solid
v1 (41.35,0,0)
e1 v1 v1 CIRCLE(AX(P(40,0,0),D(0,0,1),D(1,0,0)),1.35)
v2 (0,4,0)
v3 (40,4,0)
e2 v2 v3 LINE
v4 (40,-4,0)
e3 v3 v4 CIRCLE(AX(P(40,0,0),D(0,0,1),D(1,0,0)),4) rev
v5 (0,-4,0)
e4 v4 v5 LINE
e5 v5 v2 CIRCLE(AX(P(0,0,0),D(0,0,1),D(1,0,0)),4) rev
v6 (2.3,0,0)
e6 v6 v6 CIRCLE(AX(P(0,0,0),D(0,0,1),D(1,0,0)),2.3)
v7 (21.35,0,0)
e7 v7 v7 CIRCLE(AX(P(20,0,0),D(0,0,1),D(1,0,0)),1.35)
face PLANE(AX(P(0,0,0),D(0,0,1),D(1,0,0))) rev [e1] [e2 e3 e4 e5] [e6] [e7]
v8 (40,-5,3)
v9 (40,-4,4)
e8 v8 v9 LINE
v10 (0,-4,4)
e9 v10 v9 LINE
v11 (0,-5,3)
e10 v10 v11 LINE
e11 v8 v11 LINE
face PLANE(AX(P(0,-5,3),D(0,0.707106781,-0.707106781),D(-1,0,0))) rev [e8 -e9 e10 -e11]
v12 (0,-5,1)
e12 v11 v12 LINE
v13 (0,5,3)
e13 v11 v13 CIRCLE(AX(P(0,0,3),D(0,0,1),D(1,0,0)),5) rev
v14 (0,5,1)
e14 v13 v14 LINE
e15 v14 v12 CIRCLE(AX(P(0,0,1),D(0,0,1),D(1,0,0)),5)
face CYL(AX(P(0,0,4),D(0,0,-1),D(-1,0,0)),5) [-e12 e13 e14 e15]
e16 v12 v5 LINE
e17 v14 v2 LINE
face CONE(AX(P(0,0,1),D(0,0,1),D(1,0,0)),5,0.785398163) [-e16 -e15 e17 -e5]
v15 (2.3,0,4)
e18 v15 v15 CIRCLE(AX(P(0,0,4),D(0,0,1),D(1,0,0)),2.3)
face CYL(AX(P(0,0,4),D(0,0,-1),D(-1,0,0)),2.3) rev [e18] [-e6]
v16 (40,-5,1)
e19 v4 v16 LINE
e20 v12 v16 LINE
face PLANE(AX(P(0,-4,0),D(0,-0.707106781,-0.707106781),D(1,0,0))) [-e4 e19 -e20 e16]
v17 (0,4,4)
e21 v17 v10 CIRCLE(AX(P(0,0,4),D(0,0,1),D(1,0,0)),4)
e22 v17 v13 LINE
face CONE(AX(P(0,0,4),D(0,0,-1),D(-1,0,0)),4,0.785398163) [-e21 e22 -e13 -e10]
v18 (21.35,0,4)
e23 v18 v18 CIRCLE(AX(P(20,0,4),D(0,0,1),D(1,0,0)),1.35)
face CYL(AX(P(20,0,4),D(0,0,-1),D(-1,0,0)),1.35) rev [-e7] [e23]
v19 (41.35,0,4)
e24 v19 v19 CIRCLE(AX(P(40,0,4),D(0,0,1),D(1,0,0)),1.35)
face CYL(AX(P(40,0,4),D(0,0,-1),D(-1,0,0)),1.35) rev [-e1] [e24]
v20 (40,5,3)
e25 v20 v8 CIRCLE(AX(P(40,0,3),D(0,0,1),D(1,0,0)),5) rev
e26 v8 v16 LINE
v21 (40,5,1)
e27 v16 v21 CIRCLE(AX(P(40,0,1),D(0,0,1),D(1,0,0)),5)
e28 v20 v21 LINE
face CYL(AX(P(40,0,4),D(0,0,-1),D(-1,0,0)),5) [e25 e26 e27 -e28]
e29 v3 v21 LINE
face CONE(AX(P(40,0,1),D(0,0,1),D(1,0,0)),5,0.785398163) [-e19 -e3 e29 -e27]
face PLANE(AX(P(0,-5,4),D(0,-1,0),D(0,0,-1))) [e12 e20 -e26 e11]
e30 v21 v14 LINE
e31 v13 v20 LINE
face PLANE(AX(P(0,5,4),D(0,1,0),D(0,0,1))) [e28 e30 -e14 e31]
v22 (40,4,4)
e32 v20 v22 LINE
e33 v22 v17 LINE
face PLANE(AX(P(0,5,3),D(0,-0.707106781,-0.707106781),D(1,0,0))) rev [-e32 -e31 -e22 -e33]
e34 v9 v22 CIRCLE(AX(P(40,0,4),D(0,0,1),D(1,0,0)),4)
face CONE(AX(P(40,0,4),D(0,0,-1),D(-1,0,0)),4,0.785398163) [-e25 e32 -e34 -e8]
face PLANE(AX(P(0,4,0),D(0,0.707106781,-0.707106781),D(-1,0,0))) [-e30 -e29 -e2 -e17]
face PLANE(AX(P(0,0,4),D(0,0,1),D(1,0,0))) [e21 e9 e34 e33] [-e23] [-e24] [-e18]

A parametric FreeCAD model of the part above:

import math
import FreeCAD as App
import Part
import Sketcher

V = App.Vector


def edges_at(feature, points):
    """Names of the edges that pass closest to the given points."""
    edges = feature.Shape.Edges
    near = lambda p: min(range(len(edges)), key=lambda i: edges[i].distToShape(Part.Vertex(*p))[0])
    return sorted({f"Edge{near(p) + 1}" for p in points})

doc = App.newDocument("Part")
params = doc.addObject("Spreadsheet::Sheet", "Params")
for row, (alias, value) in enumerate([
    ("sketch1_radius", "5 mm"),
    ("sketch1_diameter", "4.6 mm"),
    ("sketch1_diameter2", "2.7 mm"),
    ("sketch1_width", "40 mm"),
    ("pad1_length", "4 mm"),
    ("chamfer_size", "1 mm"),
], start=1):
    params.set(f"A{row}", alias)
    params.set(f"B{row}", "=" + value)
    params.setAlias(f"B{row}", alias)

body = doc.addObject("PartDesign::Body", "Body")

# Sketch on XY plane
sketch1 = body.newObject("Sketcher::SketchObject", "Sketch")
sketch1.AttachmentSupport = (doc.getObject("XY_Plane"), [""])
sketch1.MapMode = "FlatFace"
sketch1.addGeometry(Part.LineSegment(V(40, 5, 0), V(0, 5, 0)), False)
sketch1.addGeometry(Part.ArcOfCircle(Part.Circle(V(0, 0, 0), V(0, 0, 1), 5), math.radians(90), math.radians(270)), False)
sketch1.addGeometry(Part.LineSegment(V(0, -5, 0), V(40, -5, 0)), False)
sketch1.addGeometry(Part.ArcOfCircle(Part.Circle(V(40, 0, 0), V(0, 0, 1), 5), math.radians(-90), math.radians(90)), False)
sketch1.addGeometry(Part.Circle(V(0, 0, 0), V(0, 0, 1), 2.3), False)
sketch1.addGeometry(Part.Circle(V(20, 0, 0), V(0, 0, 1), 1.4), False)
sketch1.addGeometry(Part.Circle(V(40, 0, 0), V(0, 0, 1), 1.4), False)
sketch1.addConstraint(Sketcher.Constraint("Tangent", 0, 2, 1, 1))
sketch1.addConstraint(Sketcher.Constraint("Tangent", 1, 2, 2, 1))
sketch1.addConstraint(Sketcher.Constraint("Tangent", 2, 2, 3, 1))
sketch1.addConstraint(Sketcher.Constraint("Tangent", 3, 2, 0, 1))
sketch1.addConstraint(Sketcher.Constraint("Horizontal", 0))
sketch1.addConstraint(Sketcher.Constraint("Horizontal", 2))
sketch1.addConstraint(Sketcher.Constraint("Coincident", 1, 3, -1, 1))
sketch1.addConstraint(Sketcher.Constraint("Coincident", 4, 3, -1, 1))
sketch1.addConstraint(Sketcher.Constraint("Coincident", 6, 3, 3, 3))
sketch1.addConstraint(Sketcher.Constraint("Equal", 5, 6))
sketch1.addConstraint(Sketcher.Constraint("PointOnObject", 5, 3, -1))
sketch1.addConstraint(Sketcher.Constraint("Radius", 1, 5.0))
sketch1.addConstraint(Sketcher.Constraint("Diameter", 4, 4.6))
sketch1.addConstraint(Sketcher.Constraint("Diameter", 5, 2.7))
sketch1.addConstraint(Sketcher.Constraint("DistanceX", 0, 2, 0, 1, 40.0))
sketch1.addConstraint(Sketcher.Constraint("DistanceX", -1, 1, 5, 3, 20.0))
sketch1.setExpression("Constraints[11]", "Params.sketch1_radius")
sketch1.setExpression("Constraints[12]", "Params.sketch1_diameter")
sketch1.setExpression("Constraints[13]", "Params.sketch1_diameter2")
sketch1.setExpression("Constraints[14]", "Params.sketch1_width")
pad1 = body.newObject("PartDesign::Pad", "Pad")
pad1.Profile = sketch1
pad1.setExpression("Length", "Params.pad1_length")
doc.recompute()

chamfer = body.newObject("PartDesign::Chamfer", "Chamfer")
chamfer.Base = (pad1, edges_at(pad1, [
    (-5, 0, 0),
    (20, 5, 0),
    (45, 0, 0),
    (20, -5, 0),
    (45, 0, 4),
    (20, 5, 4),
    (-5, 0, 4),
    (20, -5, 4),
]))
chamfer.setExpression("Size", "Params.chamfer_size")

doc.recompute()
